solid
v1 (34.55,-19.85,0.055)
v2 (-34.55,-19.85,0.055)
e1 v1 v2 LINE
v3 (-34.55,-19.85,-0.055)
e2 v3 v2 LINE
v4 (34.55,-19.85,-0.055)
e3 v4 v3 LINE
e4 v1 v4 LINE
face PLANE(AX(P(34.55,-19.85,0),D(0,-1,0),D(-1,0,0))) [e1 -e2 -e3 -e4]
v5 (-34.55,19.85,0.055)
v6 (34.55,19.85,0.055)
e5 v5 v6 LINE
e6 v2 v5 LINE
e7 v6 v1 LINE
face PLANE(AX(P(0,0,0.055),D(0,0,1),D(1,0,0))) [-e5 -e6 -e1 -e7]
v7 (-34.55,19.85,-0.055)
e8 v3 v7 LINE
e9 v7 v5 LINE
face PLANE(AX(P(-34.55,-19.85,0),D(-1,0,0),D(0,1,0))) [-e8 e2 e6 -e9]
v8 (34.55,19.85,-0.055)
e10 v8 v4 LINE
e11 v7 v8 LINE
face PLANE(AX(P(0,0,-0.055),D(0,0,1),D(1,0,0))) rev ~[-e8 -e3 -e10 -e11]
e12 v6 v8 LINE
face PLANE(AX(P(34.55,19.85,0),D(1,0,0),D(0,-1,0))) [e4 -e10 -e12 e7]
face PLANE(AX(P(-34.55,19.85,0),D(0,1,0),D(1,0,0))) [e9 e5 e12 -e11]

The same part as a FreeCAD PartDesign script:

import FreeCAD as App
import Part
import Sketcher

doc = App.newDocument("Part")
body = doc.addObject("PartDesign::Body", "Body")

# Sketch on XY plane
sketch1 = body.newObject("Sketcher::SketchObject", "Sketch")
sketch1.AttachmentSupport = (doc.getObject("XY_Plane"), [""])
sketch1.MapMode = "FlatFace"
sketch1.addGeometry([
    Part.LineSegment(App.Vector(35, 20, 0), App.Vector(-35, 20, 0)),
    Part.LineSegment(App.Vector(-35, 20, 0), App.Vector(-35, -20, 0)),
    Part.LineSegment(App.Vector(-35, -20, 0), App.Vector(35, -20, 0)),
    Part.LineSegment(App.Vector(35, -20, 0), App.Vector(35, 20, 0)),
], False)
sketch1.addConstraint([
    Sketcher.Constraint("Coincident", 0, 2, 1, 1),
    Sketcher.Constraint("Coincident", 1, 2, 2, 1),
    Sketcher.Constraint("Coincident", 2, 2, 3, 1),
    Sketcher.Constraint("Coincident", 3, 2, 0, 1),
    Sketcher.Constraint("Horizontal", 0),
    Sketcher.Constraint("Vertical", 1),
    Sketcher.Constraint("Horizontal", 2),
    Sketcher.Constraint("Vertical", 3),
    Sketcher.Constraint("Symmetric", 0, 2, 2, 2, -1, 1),
    Sketcher.Constraint("DistanceX", 0, 2, 0, 1, 69.1),
    Sketcher.Constraint("DistanceY", 1, 2, 1, 1, 39.7),
])
pad1 = body.newObject("PartDesign::Pad", "Pad")
pad1.Profile = sketch1
pad1.Length = 0.11
pad1.Midplane = True

doc.recompute()
